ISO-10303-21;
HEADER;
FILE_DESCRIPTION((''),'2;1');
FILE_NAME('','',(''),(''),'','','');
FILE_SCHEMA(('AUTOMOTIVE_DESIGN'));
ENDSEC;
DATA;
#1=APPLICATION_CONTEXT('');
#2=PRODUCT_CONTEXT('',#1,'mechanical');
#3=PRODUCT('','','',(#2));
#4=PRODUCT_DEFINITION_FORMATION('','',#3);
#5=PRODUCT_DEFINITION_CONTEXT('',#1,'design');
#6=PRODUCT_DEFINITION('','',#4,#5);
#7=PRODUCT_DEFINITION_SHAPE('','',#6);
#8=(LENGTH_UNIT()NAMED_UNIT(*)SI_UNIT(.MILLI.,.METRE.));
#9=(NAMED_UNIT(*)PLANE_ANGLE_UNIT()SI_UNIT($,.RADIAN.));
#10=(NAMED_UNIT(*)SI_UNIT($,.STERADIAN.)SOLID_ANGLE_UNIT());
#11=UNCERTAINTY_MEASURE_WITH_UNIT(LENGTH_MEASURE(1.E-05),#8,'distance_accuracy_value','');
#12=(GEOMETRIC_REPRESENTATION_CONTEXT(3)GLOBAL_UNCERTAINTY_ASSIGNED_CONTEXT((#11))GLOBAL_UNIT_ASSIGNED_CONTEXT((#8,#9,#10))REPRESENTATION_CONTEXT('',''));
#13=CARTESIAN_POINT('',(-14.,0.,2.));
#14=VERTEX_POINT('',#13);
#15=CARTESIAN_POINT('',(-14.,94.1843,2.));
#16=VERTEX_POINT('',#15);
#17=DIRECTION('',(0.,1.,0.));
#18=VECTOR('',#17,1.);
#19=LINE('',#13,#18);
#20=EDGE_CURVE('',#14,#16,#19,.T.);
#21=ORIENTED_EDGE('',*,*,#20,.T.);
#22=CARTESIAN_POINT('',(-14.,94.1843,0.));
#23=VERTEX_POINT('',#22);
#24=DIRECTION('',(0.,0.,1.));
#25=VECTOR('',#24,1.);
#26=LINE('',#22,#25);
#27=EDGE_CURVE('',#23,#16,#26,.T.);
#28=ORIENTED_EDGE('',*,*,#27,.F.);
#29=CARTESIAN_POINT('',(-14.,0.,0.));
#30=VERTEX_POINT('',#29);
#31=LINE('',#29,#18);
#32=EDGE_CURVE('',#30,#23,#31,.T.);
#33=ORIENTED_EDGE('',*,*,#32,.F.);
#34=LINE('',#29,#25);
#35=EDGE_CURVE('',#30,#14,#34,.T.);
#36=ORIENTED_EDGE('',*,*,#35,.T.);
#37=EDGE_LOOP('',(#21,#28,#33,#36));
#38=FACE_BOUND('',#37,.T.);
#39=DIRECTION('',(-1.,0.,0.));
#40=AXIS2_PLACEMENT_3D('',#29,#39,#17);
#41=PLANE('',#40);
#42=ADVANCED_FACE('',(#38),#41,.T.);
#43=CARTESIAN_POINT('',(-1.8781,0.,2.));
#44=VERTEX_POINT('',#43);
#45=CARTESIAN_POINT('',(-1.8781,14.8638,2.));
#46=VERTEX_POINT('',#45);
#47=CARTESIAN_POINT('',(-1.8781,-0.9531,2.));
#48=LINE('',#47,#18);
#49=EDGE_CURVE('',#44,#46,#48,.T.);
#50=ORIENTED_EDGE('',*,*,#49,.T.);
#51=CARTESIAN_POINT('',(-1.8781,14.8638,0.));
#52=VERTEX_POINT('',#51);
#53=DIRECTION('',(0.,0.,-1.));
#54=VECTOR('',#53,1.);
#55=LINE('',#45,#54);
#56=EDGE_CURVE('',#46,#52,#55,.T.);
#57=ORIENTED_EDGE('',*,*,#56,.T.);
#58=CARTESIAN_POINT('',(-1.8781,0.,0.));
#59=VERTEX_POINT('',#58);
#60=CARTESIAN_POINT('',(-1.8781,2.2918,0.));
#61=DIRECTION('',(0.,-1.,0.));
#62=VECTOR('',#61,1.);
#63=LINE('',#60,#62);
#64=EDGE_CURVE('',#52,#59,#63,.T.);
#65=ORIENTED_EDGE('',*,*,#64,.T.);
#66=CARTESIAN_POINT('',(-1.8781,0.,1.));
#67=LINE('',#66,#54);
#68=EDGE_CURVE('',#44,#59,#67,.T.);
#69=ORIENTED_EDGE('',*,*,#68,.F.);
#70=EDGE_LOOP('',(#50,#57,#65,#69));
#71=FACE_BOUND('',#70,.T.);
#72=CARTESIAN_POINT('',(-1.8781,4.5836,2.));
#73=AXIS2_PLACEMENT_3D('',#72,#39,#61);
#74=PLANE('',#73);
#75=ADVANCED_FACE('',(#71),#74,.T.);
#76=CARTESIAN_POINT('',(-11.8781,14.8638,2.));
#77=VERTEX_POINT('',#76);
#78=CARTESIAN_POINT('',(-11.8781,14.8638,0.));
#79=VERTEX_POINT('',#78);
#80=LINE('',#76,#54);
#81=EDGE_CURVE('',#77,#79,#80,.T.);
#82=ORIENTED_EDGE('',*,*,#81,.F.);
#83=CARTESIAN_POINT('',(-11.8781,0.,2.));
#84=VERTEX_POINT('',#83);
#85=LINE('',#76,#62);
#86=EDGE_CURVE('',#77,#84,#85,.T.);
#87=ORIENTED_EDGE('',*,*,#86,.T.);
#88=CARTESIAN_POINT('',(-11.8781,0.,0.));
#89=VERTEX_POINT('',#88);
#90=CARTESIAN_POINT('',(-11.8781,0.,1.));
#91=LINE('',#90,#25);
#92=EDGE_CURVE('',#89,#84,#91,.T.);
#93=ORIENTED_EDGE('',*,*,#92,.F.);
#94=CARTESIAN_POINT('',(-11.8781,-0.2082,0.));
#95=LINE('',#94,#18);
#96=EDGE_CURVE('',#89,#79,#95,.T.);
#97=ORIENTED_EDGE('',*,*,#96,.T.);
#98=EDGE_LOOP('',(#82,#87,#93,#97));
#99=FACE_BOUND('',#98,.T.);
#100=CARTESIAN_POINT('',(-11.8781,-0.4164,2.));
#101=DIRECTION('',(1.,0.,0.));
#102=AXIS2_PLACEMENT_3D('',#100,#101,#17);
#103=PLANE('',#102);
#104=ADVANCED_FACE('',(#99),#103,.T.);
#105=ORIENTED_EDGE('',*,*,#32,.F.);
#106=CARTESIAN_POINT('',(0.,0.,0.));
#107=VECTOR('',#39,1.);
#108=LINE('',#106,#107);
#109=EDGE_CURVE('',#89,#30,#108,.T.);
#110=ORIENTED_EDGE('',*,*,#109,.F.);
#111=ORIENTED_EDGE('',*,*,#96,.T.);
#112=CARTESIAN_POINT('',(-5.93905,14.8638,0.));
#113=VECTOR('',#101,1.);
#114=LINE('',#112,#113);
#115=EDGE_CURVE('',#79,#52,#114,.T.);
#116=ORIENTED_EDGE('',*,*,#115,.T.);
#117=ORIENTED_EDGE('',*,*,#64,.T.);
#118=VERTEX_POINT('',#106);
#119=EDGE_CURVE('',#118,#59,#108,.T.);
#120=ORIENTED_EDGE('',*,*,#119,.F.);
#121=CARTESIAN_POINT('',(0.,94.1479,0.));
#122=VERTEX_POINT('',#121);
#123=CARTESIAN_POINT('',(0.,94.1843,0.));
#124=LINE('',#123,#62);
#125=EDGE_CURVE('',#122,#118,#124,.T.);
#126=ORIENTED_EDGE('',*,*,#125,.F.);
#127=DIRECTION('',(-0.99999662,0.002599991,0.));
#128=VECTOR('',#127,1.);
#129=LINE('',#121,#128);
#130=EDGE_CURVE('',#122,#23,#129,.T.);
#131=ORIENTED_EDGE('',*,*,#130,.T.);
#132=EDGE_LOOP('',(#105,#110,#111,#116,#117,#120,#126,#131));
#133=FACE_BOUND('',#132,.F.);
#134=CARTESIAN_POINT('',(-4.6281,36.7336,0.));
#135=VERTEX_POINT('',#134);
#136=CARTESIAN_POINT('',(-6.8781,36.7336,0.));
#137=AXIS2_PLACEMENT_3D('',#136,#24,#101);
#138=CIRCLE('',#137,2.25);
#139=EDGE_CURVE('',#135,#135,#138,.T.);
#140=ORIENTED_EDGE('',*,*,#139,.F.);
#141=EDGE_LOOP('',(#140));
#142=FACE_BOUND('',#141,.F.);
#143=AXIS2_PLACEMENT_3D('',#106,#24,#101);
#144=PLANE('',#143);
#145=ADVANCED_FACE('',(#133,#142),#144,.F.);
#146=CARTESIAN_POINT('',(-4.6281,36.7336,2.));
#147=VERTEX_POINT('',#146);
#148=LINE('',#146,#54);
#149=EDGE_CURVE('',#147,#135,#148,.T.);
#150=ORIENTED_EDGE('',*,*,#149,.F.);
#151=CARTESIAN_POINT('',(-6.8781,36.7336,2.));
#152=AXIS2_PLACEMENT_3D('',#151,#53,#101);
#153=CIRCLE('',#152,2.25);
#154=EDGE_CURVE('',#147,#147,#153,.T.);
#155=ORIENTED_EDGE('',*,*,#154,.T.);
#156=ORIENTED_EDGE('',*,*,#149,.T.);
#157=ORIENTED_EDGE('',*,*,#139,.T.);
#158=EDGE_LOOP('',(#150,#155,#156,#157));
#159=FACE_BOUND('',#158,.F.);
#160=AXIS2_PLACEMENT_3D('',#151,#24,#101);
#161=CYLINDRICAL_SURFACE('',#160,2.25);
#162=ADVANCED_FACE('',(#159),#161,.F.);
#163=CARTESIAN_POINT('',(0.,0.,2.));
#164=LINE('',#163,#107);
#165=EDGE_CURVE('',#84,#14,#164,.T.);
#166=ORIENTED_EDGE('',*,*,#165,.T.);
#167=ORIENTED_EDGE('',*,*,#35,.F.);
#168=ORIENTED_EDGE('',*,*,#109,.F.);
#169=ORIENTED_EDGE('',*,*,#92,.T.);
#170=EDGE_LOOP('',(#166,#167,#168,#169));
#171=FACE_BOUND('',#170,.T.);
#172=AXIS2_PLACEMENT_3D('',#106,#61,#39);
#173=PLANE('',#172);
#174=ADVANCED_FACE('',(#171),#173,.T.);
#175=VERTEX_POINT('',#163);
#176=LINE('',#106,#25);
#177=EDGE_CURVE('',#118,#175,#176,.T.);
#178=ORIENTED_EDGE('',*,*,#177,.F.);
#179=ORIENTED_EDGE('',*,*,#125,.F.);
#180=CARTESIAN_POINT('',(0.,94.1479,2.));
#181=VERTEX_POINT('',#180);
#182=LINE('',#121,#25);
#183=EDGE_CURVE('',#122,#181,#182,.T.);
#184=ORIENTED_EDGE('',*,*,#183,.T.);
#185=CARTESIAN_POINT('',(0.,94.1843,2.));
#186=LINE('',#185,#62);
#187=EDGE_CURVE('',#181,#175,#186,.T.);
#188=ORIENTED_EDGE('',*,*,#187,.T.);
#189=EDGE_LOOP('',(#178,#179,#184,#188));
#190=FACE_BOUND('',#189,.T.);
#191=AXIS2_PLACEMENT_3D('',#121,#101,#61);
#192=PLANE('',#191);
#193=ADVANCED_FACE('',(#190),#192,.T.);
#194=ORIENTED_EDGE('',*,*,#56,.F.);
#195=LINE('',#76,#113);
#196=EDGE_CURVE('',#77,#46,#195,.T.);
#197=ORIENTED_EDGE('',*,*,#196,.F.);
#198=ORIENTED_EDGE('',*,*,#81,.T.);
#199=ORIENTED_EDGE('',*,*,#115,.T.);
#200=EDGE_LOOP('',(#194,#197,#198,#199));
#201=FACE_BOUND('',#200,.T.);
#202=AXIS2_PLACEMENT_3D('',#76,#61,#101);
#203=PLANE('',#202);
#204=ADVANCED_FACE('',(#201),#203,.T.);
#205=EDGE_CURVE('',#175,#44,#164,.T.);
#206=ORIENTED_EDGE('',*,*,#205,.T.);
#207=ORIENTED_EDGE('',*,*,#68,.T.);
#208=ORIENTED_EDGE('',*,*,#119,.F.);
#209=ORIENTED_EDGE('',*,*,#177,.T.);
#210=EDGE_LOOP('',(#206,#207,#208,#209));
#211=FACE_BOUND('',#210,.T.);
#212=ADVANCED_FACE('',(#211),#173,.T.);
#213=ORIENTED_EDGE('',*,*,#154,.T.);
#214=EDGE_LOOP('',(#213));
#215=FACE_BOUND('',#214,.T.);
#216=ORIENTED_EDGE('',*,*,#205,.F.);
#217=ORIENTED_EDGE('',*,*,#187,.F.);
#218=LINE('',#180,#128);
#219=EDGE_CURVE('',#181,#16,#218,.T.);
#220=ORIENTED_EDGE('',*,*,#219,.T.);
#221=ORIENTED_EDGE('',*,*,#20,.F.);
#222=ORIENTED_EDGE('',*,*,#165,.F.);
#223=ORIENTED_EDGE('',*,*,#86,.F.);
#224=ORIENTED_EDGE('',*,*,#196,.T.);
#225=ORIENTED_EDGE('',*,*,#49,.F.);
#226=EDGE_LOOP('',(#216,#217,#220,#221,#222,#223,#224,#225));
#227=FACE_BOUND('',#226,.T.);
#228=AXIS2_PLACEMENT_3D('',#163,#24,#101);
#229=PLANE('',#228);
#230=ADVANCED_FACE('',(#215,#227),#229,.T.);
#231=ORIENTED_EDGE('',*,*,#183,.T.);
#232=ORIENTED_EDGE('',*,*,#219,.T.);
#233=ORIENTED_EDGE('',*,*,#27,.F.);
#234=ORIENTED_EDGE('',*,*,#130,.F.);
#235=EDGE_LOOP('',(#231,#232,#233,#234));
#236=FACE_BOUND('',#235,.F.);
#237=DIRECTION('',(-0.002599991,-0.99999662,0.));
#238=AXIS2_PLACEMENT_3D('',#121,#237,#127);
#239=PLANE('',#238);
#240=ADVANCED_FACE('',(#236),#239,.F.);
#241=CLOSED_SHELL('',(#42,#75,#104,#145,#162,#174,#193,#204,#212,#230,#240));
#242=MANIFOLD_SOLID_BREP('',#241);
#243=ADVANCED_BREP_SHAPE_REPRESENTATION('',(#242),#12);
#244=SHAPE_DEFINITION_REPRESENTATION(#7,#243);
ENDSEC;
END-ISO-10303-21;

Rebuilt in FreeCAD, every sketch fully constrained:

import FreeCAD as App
import Part
import Sketcher
Q = App.Units.Quantity


def add_polygon(sketch, points):
    """Adds a closed chain of lines whose ends are joined by coincident constraints."""
    first, n = sketch.GeometryCount, len(points)
    for a, b in zip(points, points[1:] + points[:1]):
        sketch.addGeometry(Part.LineSegment(App.Vector(*a, 0), App.Vector(*b, 0)), False)
    for i in range(n):
        sketch.addConstraint(Sketcher.Constraint("Coincident", first + i, 2, first + (i + 1) % n, 1))

doc = App.newDocument("Part")
body = doc.addObject("PartDesign::Body", "Body")

# Sketch on XY plane
sketch1 = body.newObject("Sketcher::SketchObject", "Sketch")
sketch1.AttachmentSupport = (doc.getObject("XY_Plane"), [""])
sketch1.MapMode = "FlatFace"
add_polygon(sketch1, [(0, 0), (0, 94), (-14, 94), (-14, 0)])  # lines 0-3
sketch1.addConstraint([
    Sketcher.Constraint("Vertical", 0),
    Sketcher.Constraint("Vertical", 2),
    Sketcher.Constraint("Horizontal", 3),
    Sketcher.Constraint("Coincident", 3, 2, -1, 1),
    Sketcher.Constraint("DistanceX", 3, 1, 3, 2, Q("14 mm")),
    Sketcher.Constraint("Angle", 1, Q("179.851 deg")),
    Sketcher.Constraint("DistanceY", 0, 1, 0, 2, Q("94.148 mm")),
])
pad1 = body.newObject("PartDesign::Pad", "Pad")
pad1.Profile = sketch1
pad1.Length = 2

# Sketch on XY plane
sketch2 = body.newObject("Sketcher::SketchObject", "Sketch001")
sketch2.AttachmentSupport = (doc.getObject("XY_Plane"), [""])
sketch2.MapMode = "FlatFace"
sketch2.AttachmentOffset = App.Placement(App.Vector(0, 0, 2), App.Rotation())
sketch2.addGeometry(Part.Circle(App.Vector(-6.9, 36.7, 0), App.Vector(0, 0, 1), 2.2), False)  # 0
add_polygon(sketch2, [(-1.9, 14.9), (-11.9, 14.9), (-11.9, -1), (-1.9, -1)])  # lines 1-4
sketch2.addConstraint([
    Sketcher.Constraint("Horizontal", 1),
    Sketcher.Constraint("Vertical", 2),
    Sketcher.Constraint("Horizontal", 3),
    Sketcher.Constraint("Vertical", 4),
    Sketcher.Constraint("Diameter", 0, Q("4.5 mm")),
    Sketcher.Constraint("DistanceX", 1, 2, 1, 1, Q("10 mm")),
    Sketcher.Constraint("DistanceX", 1, 2, 0, 3, Q("5 mm")),
    Sketcher.Constraint("DistanceY", 2, 2, 2, 1, Q("15.817 mm")),
    Sketcher.Constraint("DistanceX", 0, 3, -1, 1, Q("6.878 mm")),
    Sketcher.Constraint("DistanceY", 2, 2, -1, 1, Q("0.953 mm")),
    Sketcher.Constraint("DistanceY", -1, 1, 0, 3, Q("36.7336 mm")),
])
pocket1 = body.newObject("PartDesign::Pocket", "Pocket")
pocket1.Profile = sketch2
pocket1.Type = "ThroughAll"

doc.recompute()
